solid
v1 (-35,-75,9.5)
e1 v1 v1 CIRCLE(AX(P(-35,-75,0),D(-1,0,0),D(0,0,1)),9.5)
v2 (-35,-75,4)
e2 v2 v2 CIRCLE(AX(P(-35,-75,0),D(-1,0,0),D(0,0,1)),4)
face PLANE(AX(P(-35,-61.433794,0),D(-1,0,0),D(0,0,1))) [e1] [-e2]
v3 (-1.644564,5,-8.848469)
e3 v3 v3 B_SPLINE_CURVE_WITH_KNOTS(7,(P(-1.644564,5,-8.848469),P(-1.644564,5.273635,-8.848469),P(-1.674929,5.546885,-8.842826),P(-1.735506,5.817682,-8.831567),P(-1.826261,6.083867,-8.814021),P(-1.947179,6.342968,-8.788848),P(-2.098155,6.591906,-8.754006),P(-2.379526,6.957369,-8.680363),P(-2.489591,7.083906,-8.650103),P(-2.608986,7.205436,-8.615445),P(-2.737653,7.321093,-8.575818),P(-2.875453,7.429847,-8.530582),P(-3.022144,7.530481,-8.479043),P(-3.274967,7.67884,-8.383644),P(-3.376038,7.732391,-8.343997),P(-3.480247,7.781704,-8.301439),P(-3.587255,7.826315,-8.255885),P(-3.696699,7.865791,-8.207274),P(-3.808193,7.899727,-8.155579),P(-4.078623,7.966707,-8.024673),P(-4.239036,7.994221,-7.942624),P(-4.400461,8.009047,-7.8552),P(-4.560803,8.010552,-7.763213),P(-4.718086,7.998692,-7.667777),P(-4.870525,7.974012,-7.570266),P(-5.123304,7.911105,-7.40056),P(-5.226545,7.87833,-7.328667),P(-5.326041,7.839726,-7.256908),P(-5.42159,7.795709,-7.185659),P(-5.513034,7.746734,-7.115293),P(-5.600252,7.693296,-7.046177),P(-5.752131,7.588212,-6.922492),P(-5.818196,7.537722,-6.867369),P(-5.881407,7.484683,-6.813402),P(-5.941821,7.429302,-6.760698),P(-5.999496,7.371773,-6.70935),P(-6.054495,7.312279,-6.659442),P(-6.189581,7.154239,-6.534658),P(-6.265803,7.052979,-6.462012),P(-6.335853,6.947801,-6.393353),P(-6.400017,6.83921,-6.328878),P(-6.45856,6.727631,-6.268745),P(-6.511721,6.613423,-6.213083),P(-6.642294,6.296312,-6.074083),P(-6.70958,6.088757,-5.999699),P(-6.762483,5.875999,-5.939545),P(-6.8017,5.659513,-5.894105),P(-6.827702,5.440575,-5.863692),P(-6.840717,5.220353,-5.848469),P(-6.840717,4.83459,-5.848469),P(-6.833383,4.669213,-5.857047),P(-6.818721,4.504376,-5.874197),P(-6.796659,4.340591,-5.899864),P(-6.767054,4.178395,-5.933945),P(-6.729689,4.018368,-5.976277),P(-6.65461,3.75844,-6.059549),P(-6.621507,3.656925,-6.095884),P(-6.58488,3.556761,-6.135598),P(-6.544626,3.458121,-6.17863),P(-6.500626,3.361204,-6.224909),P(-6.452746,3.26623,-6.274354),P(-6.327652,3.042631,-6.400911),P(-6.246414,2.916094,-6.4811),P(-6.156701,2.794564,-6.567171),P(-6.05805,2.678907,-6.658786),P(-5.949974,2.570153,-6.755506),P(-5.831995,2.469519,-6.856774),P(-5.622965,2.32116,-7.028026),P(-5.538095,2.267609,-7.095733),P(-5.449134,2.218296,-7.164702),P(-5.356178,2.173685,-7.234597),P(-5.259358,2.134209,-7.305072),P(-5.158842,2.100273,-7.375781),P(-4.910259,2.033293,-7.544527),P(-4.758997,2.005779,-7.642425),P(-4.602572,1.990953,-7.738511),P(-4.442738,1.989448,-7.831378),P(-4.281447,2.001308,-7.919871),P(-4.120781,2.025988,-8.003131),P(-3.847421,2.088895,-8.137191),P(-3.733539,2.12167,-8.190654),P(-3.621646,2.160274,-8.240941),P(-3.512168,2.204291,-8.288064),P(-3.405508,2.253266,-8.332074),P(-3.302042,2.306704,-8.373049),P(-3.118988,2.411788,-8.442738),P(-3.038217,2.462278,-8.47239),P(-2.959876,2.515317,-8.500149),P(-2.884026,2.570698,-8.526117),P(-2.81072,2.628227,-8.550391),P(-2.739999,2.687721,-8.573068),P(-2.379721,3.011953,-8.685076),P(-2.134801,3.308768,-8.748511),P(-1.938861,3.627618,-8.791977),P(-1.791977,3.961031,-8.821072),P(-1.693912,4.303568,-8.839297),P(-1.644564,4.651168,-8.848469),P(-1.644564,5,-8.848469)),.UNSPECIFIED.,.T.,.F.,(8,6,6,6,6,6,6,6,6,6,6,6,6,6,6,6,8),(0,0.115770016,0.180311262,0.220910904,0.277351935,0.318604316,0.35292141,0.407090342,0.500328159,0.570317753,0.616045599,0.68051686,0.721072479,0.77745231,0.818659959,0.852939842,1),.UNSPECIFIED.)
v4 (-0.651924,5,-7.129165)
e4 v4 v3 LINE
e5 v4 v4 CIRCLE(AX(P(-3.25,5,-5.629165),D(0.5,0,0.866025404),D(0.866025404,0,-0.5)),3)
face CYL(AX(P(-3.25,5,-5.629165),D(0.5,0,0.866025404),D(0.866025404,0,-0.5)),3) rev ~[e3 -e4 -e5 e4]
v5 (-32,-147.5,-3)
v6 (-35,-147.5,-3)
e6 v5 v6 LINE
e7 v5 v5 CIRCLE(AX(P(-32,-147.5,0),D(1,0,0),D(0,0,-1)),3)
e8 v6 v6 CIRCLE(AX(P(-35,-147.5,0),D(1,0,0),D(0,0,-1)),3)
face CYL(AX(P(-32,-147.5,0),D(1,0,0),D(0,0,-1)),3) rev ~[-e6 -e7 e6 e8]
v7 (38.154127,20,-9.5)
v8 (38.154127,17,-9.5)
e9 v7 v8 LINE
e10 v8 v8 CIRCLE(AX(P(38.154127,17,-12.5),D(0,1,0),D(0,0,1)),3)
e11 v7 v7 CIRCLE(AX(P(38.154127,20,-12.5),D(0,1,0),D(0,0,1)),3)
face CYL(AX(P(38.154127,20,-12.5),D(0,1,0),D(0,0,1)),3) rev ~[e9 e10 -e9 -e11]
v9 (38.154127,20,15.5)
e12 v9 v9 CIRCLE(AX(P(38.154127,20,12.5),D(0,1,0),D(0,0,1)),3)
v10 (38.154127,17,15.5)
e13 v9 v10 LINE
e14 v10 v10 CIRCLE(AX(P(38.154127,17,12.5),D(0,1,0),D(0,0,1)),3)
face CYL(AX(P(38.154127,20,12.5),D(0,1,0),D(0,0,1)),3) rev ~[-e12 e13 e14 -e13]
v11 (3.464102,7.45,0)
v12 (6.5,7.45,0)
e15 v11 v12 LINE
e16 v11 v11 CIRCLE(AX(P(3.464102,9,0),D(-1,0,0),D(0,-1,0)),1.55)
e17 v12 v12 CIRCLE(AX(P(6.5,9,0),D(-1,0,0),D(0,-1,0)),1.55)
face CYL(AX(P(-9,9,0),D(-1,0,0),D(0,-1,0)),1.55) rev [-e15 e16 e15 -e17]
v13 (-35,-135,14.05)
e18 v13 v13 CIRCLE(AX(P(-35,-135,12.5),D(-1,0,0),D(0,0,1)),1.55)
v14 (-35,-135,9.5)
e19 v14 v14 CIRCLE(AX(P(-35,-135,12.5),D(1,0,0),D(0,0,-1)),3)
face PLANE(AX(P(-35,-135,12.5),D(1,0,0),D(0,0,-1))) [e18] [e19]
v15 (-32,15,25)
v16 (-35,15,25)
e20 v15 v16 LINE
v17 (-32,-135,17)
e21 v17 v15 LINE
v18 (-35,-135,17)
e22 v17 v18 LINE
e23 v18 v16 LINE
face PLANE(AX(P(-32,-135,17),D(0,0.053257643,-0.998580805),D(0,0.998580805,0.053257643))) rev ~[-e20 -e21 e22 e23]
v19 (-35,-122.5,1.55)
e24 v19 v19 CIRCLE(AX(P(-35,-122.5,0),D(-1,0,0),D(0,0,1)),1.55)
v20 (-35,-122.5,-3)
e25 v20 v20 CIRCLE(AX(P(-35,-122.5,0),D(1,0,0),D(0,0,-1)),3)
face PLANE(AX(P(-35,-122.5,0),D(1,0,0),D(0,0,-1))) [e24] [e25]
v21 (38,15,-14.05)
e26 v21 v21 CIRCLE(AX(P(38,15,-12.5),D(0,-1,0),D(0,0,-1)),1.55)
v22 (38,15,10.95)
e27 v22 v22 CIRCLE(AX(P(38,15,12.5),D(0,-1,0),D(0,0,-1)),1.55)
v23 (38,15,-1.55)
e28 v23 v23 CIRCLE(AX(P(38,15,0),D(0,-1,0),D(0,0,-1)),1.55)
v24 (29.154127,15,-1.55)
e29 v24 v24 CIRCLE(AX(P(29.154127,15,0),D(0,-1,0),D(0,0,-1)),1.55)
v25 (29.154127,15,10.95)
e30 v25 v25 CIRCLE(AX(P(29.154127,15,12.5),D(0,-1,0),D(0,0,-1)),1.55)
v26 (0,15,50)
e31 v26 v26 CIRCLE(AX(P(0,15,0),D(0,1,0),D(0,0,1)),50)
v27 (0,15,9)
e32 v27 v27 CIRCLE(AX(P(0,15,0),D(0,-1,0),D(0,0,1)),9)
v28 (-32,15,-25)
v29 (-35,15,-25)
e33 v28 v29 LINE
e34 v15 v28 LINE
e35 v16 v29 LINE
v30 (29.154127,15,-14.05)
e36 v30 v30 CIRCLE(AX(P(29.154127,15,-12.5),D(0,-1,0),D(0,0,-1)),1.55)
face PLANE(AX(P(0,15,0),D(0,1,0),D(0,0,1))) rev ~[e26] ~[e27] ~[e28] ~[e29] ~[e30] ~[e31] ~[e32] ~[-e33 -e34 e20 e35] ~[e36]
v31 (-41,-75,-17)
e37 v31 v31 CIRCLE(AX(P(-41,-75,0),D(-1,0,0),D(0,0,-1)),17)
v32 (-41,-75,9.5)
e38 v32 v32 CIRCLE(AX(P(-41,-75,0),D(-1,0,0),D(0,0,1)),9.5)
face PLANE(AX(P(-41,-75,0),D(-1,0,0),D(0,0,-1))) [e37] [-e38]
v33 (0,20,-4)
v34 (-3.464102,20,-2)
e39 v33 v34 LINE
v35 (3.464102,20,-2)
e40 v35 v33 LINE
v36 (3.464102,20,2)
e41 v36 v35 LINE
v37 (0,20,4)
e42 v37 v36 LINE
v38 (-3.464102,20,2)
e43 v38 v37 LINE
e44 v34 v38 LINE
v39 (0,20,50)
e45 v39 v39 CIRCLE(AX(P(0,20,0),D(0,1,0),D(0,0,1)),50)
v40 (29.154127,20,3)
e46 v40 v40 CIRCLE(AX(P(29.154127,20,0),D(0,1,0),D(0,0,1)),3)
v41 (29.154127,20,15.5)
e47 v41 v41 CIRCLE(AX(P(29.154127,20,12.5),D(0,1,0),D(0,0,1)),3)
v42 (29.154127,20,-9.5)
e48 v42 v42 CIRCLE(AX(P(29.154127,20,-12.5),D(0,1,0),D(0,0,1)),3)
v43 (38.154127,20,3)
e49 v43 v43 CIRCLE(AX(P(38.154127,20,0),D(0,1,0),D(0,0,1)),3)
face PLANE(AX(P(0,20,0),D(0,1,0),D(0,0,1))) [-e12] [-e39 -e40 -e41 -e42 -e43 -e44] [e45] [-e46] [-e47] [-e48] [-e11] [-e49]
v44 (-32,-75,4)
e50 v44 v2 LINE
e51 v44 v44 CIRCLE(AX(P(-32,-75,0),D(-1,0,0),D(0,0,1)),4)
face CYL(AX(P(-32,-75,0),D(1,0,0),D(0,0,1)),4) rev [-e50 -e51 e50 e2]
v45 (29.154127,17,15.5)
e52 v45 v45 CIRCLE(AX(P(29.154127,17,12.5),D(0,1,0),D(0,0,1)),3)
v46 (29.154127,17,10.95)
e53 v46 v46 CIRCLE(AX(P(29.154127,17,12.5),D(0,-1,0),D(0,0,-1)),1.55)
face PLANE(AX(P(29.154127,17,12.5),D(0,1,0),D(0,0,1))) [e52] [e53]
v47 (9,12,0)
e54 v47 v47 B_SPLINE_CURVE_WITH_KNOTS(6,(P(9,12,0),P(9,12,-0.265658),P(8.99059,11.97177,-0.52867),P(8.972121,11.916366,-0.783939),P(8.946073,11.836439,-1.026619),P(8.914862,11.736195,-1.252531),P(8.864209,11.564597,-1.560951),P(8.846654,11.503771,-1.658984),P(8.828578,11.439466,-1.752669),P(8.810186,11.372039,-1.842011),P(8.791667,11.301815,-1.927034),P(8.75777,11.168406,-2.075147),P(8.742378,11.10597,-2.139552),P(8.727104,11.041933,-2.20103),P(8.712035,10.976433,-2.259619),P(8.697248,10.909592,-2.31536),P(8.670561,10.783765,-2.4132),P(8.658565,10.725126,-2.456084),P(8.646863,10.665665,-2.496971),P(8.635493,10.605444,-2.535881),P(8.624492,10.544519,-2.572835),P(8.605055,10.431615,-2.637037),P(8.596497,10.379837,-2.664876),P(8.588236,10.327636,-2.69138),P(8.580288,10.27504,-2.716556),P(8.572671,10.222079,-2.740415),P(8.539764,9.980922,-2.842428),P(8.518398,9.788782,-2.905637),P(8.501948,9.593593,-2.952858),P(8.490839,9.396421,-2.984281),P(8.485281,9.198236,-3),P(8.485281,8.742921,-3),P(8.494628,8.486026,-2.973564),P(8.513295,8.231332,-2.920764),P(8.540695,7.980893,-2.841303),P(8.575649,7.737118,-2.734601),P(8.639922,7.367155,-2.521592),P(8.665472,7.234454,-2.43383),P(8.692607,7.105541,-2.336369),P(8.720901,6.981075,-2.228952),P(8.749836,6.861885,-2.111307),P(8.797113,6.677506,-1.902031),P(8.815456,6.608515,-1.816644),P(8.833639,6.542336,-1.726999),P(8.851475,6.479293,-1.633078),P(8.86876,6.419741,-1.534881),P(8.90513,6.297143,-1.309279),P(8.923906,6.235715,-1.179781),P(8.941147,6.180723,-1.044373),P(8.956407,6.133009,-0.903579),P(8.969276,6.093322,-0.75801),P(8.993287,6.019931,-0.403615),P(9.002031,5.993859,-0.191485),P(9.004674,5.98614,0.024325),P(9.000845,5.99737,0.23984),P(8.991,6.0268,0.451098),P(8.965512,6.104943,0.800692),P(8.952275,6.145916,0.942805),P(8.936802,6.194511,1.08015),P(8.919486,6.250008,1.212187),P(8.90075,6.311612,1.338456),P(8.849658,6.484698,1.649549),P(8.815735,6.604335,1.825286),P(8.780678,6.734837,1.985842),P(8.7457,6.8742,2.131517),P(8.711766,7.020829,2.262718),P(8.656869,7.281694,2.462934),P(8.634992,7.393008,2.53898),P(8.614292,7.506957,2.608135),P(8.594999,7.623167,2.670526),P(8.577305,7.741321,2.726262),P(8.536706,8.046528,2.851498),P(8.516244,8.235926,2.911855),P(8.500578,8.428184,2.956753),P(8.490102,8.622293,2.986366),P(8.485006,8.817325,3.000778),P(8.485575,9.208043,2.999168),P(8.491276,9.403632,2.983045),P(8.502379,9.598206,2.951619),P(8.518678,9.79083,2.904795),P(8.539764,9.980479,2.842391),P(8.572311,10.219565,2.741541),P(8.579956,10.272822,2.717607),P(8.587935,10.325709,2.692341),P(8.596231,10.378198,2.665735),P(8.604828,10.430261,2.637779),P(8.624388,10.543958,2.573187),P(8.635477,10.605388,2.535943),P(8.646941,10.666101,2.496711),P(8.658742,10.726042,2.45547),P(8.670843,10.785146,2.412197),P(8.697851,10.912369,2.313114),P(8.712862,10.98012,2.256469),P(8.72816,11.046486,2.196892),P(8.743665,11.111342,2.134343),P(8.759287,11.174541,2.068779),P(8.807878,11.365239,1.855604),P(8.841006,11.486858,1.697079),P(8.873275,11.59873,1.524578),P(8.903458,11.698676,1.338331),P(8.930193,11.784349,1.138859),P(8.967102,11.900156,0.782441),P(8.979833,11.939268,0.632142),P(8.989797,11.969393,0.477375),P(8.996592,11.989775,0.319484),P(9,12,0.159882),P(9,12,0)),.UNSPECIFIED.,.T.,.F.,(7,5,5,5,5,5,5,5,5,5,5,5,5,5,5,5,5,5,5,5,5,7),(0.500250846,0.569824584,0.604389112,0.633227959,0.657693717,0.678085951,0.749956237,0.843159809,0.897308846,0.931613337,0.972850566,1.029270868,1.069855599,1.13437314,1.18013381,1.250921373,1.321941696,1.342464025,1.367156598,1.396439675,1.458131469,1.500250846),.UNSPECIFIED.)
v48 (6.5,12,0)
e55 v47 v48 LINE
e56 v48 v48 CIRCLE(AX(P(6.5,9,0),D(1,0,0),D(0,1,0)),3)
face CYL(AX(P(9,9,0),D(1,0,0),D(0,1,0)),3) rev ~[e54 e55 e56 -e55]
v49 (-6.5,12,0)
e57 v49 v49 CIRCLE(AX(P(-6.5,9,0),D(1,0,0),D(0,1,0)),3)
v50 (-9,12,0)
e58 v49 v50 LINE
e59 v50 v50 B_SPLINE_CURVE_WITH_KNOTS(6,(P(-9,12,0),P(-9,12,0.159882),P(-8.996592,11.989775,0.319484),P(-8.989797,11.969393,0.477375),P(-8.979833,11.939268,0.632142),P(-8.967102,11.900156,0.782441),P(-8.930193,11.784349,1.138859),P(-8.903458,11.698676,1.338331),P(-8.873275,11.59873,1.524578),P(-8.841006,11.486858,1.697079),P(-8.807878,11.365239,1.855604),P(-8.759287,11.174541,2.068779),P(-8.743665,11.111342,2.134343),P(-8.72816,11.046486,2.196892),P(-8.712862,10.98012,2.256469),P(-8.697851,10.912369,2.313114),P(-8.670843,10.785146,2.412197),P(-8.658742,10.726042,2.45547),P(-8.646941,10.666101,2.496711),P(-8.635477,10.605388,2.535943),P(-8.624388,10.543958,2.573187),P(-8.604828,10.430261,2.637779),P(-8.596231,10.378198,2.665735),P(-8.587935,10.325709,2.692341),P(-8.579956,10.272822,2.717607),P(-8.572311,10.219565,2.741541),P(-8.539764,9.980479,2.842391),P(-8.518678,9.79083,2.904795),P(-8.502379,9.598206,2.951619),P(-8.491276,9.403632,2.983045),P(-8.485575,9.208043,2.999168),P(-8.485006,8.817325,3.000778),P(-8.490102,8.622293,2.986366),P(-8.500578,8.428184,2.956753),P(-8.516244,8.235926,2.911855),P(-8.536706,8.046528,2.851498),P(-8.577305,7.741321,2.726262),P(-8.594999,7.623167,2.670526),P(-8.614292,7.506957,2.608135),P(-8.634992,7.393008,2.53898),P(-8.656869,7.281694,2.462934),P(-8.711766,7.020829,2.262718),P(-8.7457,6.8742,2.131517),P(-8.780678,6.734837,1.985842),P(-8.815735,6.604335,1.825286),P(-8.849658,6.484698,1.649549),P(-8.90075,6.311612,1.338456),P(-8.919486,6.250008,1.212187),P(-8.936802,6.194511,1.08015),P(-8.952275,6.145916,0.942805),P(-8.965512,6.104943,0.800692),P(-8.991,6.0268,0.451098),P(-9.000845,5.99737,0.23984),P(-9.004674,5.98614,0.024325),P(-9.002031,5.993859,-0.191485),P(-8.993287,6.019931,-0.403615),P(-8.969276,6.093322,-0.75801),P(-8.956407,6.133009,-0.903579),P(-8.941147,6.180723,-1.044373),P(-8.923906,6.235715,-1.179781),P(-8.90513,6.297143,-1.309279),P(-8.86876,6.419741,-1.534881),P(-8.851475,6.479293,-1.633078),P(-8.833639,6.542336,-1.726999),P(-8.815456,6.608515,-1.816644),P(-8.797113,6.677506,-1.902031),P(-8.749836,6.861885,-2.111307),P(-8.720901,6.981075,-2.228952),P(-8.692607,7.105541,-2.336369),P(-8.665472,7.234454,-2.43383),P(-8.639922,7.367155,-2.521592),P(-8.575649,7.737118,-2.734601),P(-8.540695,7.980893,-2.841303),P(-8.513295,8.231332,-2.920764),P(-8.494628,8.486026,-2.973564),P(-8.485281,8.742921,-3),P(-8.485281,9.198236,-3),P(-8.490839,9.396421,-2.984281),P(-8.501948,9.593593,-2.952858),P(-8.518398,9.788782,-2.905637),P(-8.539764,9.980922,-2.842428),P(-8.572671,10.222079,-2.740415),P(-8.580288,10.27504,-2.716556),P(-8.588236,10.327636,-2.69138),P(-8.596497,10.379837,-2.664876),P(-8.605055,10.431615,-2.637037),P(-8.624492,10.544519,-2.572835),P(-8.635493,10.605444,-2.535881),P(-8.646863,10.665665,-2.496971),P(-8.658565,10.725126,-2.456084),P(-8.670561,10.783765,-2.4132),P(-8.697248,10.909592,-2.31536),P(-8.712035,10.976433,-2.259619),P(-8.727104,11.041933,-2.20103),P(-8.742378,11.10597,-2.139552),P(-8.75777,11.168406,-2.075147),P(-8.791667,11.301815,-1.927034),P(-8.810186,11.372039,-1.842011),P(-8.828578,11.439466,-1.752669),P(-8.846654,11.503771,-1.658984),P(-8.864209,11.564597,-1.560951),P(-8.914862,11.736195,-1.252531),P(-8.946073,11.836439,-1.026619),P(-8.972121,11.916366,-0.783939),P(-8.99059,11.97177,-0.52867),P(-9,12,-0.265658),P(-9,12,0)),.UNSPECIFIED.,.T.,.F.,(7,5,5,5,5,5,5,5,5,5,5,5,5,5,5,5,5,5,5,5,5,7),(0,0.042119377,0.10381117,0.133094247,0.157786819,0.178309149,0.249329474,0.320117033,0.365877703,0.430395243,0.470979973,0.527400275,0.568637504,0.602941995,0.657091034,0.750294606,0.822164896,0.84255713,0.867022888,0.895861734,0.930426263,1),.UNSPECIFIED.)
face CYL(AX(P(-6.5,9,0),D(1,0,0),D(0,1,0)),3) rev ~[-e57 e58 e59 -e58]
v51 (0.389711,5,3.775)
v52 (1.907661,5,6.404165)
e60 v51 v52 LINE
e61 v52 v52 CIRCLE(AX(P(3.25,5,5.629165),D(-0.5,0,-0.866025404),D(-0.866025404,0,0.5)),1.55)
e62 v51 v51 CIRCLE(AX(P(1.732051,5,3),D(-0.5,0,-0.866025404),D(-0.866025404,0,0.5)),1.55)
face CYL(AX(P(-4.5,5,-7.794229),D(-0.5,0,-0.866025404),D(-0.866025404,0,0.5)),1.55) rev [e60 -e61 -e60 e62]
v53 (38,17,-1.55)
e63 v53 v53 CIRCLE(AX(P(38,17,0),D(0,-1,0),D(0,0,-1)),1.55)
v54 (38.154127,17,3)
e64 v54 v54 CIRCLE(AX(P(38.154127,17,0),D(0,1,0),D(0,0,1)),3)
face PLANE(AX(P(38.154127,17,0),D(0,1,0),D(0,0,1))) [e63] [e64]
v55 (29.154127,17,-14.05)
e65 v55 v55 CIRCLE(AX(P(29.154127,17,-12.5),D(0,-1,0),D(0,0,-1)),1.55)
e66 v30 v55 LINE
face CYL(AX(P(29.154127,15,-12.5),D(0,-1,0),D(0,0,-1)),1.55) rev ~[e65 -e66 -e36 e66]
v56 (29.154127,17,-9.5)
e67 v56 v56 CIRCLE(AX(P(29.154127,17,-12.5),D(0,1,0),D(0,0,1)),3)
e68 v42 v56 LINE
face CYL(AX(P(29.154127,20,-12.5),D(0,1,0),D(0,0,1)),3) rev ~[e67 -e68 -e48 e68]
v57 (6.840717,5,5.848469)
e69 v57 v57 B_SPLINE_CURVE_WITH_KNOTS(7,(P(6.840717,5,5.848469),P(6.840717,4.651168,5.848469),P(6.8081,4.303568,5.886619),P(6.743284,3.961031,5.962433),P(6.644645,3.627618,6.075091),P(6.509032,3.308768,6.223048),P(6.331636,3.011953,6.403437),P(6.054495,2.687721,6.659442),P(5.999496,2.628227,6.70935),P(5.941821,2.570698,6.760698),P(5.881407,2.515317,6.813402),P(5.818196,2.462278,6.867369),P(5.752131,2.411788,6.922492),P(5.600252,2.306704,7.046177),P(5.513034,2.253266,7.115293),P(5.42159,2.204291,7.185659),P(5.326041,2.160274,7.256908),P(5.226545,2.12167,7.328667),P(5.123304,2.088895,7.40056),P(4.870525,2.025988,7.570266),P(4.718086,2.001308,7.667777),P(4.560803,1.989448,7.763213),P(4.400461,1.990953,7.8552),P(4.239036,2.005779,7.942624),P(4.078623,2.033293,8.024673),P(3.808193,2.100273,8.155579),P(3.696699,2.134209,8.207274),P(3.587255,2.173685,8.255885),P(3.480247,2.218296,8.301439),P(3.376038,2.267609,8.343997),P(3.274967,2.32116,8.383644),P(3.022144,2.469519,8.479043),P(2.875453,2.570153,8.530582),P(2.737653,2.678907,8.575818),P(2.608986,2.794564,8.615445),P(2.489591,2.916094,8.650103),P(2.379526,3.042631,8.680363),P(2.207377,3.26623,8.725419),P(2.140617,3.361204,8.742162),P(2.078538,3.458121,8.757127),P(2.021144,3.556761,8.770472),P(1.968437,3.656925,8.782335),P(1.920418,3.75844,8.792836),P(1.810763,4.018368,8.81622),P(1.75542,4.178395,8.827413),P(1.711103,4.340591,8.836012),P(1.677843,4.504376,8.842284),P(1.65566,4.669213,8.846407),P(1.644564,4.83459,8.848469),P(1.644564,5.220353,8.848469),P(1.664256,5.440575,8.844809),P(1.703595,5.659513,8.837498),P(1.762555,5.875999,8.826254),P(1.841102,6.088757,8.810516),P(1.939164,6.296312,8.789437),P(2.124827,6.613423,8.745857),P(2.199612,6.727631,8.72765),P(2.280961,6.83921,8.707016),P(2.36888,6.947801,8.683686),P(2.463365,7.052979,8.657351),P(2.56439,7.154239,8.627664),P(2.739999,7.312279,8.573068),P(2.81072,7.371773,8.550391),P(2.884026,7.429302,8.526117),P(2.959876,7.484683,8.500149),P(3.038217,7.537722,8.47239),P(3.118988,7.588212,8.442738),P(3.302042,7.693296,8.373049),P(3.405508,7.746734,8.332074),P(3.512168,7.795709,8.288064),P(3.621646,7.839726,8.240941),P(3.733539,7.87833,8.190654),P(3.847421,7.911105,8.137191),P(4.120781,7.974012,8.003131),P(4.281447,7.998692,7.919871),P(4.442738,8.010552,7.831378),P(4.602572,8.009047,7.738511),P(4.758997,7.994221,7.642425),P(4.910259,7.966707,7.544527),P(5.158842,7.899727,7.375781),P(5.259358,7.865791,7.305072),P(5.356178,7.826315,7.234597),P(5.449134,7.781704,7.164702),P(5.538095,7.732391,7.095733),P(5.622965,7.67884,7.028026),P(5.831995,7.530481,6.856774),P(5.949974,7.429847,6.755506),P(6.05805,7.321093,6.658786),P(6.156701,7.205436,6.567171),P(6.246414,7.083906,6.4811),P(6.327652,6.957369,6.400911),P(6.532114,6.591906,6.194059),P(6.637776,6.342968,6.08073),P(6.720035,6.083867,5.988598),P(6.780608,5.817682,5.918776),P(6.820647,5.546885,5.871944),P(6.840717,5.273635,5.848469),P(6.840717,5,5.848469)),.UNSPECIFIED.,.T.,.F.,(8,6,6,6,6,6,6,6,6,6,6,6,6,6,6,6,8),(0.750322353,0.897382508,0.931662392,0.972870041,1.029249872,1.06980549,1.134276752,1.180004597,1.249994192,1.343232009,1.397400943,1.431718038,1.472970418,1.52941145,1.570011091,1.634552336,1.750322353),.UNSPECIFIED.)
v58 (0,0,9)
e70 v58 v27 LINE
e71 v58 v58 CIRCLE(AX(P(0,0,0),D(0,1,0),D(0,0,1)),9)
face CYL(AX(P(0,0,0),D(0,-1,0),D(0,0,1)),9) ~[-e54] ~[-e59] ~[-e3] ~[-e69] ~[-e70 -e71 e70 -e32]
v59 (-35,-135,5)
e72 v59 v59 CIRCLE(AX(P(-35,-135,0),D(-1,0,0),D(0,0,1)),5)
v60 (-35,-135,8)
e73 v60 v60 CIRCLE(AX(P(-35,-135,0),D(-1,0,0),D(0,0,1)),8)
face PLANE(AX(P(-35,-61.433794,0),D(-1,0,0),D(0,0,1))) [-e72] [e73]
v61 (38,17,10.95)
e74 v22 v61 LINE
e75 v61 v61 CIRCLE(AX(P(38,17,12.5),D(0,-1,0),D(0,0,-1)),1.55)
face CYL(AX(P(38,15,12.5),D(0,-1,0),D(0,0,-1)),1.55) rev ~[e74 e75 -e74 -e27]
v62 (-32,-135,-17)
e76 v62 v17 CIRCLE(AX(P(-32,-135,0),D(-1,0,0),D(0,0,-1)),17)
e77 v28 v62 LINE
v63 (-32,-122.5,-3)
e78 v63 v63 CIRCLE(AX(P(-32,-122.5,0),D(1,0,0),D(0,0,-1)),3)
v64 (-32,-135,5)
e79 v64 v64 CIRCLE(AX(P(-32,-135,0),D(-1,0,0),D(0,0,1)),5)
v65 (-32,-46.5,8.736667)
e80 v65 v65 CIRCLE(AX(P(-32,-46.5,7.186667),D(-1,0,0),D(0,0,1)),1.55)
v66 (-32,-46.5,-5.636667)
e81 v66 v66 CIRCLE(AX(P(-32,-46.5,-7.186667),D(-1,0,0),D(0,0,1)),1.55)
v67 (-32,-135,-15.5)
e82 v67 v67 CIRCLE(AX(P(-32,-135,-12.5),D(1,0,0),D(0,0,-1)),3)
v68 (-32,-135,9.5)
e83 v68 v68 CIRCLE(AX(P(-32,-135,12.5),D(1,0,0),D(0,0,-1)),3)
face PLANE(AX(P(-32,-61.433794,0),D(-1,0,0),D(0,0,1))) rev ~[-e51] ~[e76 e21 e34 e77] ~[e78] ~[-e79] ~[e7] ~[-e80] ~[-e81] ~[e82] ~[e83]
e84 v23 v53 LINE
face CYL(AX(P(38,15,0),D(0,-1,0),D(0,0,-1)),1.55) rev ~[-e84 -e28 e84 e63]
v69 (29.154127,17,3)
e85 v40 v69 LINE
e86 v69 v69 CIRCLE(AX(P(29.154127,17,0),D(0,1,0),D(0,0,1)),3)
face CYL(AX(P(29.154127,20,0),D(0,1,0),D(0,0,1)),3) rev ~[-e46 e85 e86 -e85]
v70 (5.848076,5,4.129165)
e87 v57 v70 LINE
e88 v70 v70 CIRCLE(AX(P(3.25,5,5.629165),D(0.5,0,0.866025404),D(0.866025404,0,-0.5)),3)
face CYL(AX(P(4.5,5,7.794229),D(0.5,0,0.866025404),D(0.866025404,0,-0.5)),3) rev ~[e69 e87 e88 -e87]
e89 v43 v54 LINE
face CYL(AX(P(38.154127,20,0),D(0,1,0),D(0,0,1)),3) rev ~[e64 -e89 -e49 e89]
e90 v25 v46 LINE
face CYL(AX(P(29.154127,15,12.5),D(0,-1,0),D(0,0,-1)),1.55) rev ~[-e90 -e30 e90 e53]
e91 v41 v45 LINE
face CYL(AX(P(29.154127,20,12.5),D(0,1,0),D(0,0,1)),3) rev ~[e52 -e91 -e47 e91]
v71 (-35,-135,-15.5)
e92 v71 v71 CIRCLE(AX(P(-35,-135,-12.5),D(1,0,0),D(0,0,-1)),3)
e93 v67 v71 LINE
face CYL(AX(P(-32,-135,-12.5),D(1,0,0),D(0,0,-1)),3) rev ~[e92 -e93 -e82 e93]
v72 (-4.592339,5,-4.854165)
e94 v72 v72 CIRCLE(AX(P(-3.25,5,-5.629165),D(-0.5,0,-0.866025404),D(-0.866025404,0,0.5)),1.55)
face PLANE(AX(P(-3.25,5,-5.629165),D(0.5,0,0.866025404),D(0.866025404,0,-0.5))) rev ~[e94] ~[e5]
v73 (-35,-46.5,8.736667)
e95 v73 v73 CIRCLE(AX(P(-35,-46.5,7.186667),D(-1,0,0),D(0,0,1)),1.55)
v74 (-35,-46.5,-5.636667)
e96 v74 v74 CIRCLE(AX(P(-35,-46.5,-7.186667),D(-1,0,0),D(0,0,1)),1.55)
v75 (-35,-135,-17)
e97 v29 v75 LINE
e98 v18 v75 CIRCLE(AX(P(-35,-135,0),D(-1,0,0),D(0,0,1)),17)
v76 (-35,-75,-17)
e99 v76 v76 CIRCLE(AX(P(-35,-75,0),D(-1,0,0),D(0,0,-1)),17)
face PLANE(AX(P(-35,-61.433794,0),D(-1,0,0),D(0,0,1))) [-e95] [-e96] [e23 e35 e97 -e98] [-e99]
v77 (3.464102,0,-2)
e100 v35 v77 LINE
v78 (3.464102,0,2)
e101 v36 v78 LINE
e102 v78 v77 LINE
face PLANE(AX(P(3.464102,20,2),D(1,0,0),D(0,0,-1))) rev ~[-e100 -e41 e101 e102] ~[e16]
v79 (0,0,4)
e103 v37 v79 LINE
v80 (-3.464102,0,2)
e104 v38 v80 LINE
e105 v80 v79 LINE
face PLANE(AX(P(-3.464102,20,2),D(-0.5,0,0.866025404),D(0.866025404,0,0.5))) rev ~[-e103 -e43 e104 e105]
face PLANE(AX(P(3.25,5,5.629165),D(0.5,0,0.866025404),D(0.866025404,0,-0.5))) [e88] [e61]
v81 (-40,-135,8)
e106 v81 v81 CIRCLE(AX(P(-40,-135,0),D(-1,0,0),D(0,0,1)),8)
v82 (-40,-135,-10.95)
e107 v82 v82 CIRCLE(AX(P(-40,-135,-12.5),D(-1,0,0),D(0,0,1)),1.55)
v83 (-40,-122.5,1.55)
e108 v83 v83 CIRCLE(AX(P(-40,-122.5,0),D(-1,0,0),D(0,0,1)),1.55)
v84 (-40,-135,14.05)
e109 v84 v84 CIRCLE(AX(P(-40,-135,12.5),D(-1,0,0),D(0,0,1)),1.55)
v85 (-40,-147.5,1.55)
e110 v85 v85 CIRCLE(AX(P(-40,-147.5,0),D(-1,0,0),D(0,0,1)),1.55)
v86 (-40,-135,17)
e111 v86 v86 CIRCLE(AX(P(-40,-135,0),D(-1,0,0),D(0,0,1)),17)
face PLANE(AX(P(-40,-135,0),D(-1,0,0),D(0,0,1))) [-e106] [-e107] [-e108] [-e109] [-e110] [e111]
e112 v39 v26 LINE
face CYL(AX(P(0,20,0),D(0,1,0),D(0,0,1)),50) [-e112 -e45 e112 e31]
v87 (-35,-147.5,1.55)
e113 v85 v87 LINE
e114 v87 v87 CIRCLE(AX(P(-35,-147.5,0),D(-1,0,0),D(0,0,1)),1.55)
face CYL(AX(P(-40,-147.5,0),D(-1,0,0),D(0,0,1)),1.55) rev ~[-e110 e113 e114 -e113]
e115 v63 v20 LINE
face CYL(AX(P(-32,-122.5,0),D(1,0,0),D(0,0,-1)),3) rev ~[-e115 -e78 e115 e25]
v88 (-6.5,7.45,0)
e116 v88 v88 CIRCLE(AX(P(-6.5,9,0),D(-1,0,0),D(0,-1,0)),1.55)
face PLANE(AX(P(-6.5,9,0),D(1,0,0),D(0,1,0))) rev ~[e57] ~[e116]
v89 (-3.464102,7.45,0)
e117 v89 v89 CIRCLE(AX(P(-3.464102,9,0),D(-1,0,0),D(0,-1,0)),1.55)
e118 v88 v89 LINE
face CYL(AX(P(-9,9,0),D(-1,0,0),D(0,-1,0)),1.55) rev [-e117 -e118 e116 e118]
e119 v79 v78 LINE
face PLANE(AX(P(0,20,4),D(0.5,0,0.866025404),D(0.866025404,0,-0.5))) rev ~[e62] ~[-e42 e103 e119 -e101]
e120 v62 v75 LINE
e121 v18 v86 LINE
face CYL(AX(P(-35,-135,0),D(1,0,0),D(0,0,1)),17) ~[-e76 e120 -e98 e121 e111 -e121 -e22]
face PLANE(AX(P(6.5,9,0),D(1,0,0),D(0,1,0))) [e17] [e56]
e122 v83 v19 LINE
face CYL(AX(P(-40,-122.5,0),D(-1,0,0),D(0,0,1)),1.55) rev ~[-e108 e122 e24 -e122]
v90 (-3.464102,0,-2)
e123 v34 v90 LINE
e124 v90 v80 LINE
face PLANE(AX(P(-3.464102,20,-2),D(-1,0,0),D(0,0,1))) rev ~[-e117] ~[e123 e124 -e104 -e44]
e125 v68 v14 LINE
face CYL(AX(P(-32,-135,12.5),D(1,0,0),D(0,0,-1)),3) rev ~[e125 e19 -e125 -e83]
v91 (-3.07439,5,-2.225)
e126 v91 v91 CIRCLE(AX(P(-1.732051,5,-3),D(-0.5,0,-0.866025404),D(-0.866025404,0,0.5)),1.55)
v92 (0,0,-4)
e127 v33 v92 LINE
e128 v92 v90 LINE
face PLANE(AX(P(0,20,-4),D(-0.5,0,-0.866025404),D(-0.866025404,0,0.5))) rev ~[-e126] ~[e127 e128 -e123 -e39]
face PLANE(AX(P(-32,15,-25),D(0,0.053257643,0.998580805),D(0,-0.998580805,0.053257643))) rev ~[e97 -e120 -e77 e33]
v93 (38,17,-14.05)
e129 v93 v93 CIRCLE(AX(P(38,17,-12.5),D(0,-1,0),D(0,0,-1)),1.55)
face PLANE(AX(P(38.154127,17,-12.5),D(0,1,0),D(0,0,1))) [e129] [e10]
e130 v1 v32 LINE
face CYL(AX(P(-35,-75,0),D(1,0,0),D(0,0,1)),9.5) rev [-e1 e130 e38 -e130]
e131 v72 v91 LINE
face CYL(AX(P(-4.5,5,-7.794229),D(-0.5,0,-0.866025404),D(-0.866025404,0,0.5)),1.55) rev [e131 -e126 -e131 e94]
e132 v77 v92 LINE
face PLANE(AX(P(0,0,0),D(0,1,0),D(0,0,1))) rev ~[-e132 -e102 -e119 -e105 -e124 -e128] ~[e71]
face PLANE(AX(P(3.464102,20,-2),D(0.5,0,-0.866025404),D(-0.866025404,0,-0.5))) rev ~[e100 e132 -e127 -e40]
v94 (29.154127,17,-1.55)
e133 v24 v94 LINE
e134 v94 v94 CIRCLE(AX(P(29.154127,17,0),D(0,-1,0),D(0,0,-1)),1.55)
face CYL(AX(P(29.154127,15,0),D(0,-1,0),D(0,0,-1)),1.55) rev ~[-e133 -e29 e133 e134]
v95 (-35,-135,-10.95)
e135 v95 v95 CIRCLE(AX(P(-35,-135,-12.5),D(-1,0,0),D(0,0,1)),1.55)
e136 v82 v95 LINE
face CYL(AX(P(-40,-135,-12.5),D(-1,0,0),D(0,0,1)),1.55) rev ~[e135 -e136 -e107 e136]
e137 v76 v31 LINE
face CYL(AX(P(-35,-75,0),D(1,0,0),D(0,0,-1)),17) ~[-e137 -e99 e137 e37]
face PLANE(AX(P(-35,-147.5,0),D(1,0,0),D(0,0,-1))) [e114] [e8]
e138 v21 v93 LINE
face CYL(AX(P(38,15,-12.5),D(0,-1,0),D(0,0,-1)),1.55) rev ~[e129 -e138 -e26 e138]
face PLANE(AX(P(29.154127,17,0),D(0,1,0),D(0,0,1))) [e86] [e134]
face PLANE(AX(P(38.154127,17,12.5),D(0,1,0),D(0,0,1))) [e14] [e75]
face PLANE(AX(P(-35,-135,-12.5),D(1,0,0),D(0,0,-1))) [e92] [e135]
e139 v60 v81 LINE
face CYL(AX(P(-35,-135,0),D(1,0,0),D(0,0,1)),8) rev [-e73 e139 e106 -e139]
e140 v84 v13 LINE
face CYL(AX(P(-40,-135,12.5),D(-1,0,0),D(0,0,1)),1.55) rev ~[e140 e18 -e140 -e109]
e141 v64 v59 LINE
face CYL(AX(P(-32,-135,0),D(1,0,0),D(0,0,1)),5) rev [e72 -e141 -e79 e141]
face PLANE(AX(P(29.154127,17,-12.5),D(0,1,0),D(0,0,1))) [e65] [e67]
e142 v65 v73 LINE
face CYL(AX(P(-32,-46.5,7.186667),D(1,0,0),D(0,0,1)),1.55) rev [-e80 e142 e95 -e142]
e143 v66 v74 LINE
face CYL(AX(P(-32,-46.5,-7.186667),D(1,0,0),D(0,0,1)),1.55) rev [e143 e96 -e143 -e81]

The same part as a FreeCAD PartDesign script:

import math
import FreeCAD as App
import Part
import Sketcher

V = App.Vector
Q = App.Units.Quantity

doc = App.newDocument("Part")
params = doc.addObject("Spreadsheet::Sheet", "Params")
for row, (alias, value) in enumerate([
    ("sketch1_diameter", "18 mm"),
    ("pad1_length", "20 mm"),
    ("sketch2_height", "4 mm"),
    ("sketch2_length", "4 mm"),
    ("pocket1_length", "20 mm"),
    ("sketch3_diameter", "100 mm"),
    ("sketch3_diameter2", "9 mm"),
    ("pad2_length", "5 mm"),
    ("sketch4_diameter", "3.1 mm"),
    ("sketch5_diameter", "3.1 mm"),
    ("sketch6_diameter", "10 mm"),
    ("sketch6_diameter2", "8 mm"),
    ("sketch6_radius", "17 mm"),
    ("sketch6_diameter3", "3.1 mm"),
    ("sketch6_height", "50 mm"),
    ("pad3_length", "3 mm"),
    ("sketch7_diameter", "34 mm"),
    ("sketch7_diameter2", "16 mm"),
    ("pad4_length", "5 mm"),
    ("sketch8_diameter", "3.1 mm"),
    ("pocket4_length", "8 mm"),
    ("sketch9_diameter", "6 mm"),
    ("pocket5_length", "3 mm"),
    ("sketch10_diameter", "3.1 mm"),
    ("pocket6_length", "5 mm"),
    ("sketch11_diameter", "6 mm"),
    ("pocket7_length", "3 mm"),
    ("sketch12_diameter", "34 mm"),
    ("sketch12_diameter2", "19 mm"),
    ("pad5_length", "6 mm"),
    ("sketch13_diameter", "6 mm"),
    ("pocket8_length", "2.5 mm"),
    ("sketch14_diameter", "6 mm"),
    ("pocket9_length", "2.5 mm"),
    ("sketch15_diameter", "6 mm"),
    ("pocket10_length", "2.5 mm"),
    ("sketch16_diameter", "6 mm"),
    ("pocket11_length", "2.5 mm"),
], start=1):
    params.set(f"A{row}", alias)
    params.set(f"B{row}", "=" + value)
    params.setAlias(f"B{row}", alias)

body = doc.addObject("PartDesign::Body", "Body")

sketch1 = doc.addObject("Sketcher::SketchObject", "Sketch")
body.addObject(sketch1)
sketch1.AttachmentSupport = (doc.XZ_Plane, [""])
sketch1.MapMode = "FlatFace"
sketch1.addGeometry(Part.Circle(V(0, 0, 0), V(0, 0, 1), 9), False)
sketch1.addConstraint([
    Sketcher.Constraint("Coincident", 0, 3, -1, 1),
    Sketcher.Constraint("Diameter", 0, 18.0),
])
sketch1.setExpression("Constraints[1]", "Params.sketch1_diameter")
pad1 = doc.addObject("PartDesign::Pad", "Pad")
body.addObject(pad1)
pad1.Profile = sketch1
pad1.setExpression("Length", "Params.pad1_length")
pad1.Reversed = True

sketch2 = doc.addObject("Sketcher::SketchObject", "Sketch001")
body.addObject(sketch2)
sketch2.AttachmentSupport = (doc.XZ_Plane, [""])
sketch2.MapMode = "FlatFace"
sketch2.AttachmentOffset = App.Placement(V(0, 0, -20), App.Rotation())
sketch2.addGeometry([
    Part.LineSegment(V(0, -4, 0), V(-3.5, -2, 0)),
    Part.LineSegment(V(-3.5, -2, 0), V(-3.5, 2, 0)),
    Part.LineSegment(V(-3.5, 2, 0), V(0, 4, 0)),
    Part.LineSegment(V(0, 4, 0), V(3.5, 2, 0)),
    Part.LineSegment(V(3.5, 2, 0), V(3.5, -2, 0)),
    Part.LineSegment(V(3.5, -2, 0), V(0, -4, 0)),
], False)
sketch2.addConstraint([
    Sketcher.Constraint("Coincident", 0, 2, 1, 1),
    Sketcher.Constraint("Coincident", 1, 2, 2, 1),
    Sketcher.Constraint("Coincident", 2, 2, 3, 1),
    Sketcher.Constraint("Coincident", 3, 2, 4, 1),
    Sketcher.Constraint("Coincident", 4, 2, 5, 1),
    Sketcher.Constraint("Coincident", 5, 2, 0, 1),
    Sketcher.Constraint("Vertical", 1),
    Sketcher.Constraint("Vertical", 4),
    Sketcher.Constraint("Symmetric", 0, 2, 3, 2, -1, 1),
    Sketcher.Constraint("Symmetric", 2, 2, 5, 2, -1, 1),
    Sketcher.Constraint("PointOnObject", 2, 2, -2),
    Sketcher.Constraint("Parallel", 2, 5),
    Sketcher.Constraint("Horizontal", 1, 2, 3, 2),
    Sketcher.Constraint("DistanceY", 1, 1, 1, 2, 4.0),
    Sketcher.Constraint("Angle", 0, Q("150 deg")),
    Sketcher.Constraint("Distance", 0, 4.0),
])
sketch2.setExpression("Constraints[13]", "Params.sketch2_height")
sketch2.setExpression("Constraints[15]", "Params.sketch2_length")
pocket1 = doc.addObject("PartDesign::Pocket", "Pocket")
body.addObject(pocket1)
pocket1.Profile = sketch2
pocket1.setExpression("Length", "Params.pocket1_length")
pocket1.Reversed = True

sketch3 = doc.addObject("Sketcher::SketchObject", "Sketch002")
body.addObject(sketch3)
sketch3.AttachmentSupport = (doc.XZ_Plane, [""])
sketch3.MapMode = "FlatFace"
sketch3.AttachmentOffset = App.Placement(V(0, 0, -20), App.Rotation())
sketch3.addGeometry([
    Part.Circle(V(0, 0, 0), V(0, 0, 1), 50),
    Part.Circle(V(0, 0, 0), V(0, 0, 1), 4.5),
], False)
sketch3.addConstraint([
    Sketcher.Constraint("Coincident", 0, 3, -1, 1),
    Sketcher.Constraint("Coincident", 1, 3, -1, 1),
    Sketcher.Constraint("Diameter", 0, 100.0),
    Sketcher.Constraint("Diameter", 1, 9.0),
])
sketch3.setExpression("Constraints[2]", "Params.sketch3_diameter")
sketch3.setExpression("Constraints[3]", "Params.sketch3_diameter2")
pad2 = doc.addObject("PartDesign::Pad", "Pad001")
body.addObject(pad2)
pad2.Profile = sketch3
pad2.setExpression("Length", "Params.pad2_length")

sketch4 = doc.addObject("Sketcher::SketchObject", "Sketch003")
body.addObject(sketch4)
sketch4.Placement = App.Placement(V(0, 0, 0), App.Rotation(V(0.866025404, 0, -0.5), V(0, 1, 0), V(0.5, 0, 0.866025404), "ZXY"))
sketch4.addGeometry(Part.Circle(V(0, 5, 0), V(0, 0, 1), 1.6), False)
sketch4.addConstraint([
    Sketcher.Constraint("PointOnObject", 0, 3, -2),
    Sketcher.Constraint("Diameter", 0, 3.1),
    Sketcher.Constraint("DistanceY", -1, 1, 0, 3, 5.0),
])
sketch4.setExpression("Constraints[1]", "Params.sketch4_diameter")
pocket2 = doc.addObject("PartDesign::Pocket", "Pocket001")
body.addObject(pocket2)
pocket2.Profile = sketch4
pocket2.Type = "ThroughAll"
pocket2.Midplane = True

sketch5 = doc.addObject("Sketcher::SketchObject", "Sketch004")
body.addObject(sketch5)
sketch5.AttachmentSupport = (doc.YZ_Plane, [""])
sketch5.MapMode = "FlatFace"
sketch5.addGeometry(Part.Circle(V(9, 0, 0), V(0, 0, 1), 1.6), False)
sketch5.addConstraint([
    Sketcher.Constraint("PointOnObject", 0, 3, -1),
    Sketcher.Constraint("Diameter", 0, 3.1),
    Sketcher.Constraint("DistanceX", -1, 1, 0, 3, 9.0),
])
sketch5.setExpression("Constraints[1]", "Params.sketch5_diameter")
pocket3 = doc.addObject("PartDesign::Pocket", "Pocket002")
body.addObject(pocket3)
pocket3.Profile = sketch5
pocket3.Type = "ThroughAll"
pocket3.Midplane = True

sketch6 = doc.addObject("Sketcher::SketchObject", "Sketch005")
body.addObject(sketch6)
sketch6.AttachmentSupport = (doc.YZ_Plane, [""])
sketch6.MapMode = "FlatFace"
sketch6.AttachmentOffset = App.Placement(V(0, 0, -32), App.Rotation())
sketch6.addGeometry([
    Part.LineSegment(V(15, 25, 0), V(15, -25, 0)),
    Part.LineSegment(V(15, -25, 0), V(-135, -17, 0)),
    Part.ArcOfCircle(Part.Circle(V(-135, 0, 0), V(0, 0, 1), 17), math.radians(90), math.radians(270)),
    Part.LineSegment(V(-135, 17, 0), V(15, 25, 0)),
    Part.Circle(V(-135, 0, 0), V(0, 0, 1), 5),
    Part.Circle(V(-46.5, -7.2, 0), V(0, 0, 1), 1.6),
    Part.Circle(V(-75, 0, 0), V(0, 0, 1), 4),
    Part.Circle(V(-46.5, 7.2, 0), V(0, 0, 1), 1.6),
], False)
sketch6.addConstraint([
    Sketcher.Constraint("Coincident", 0, 2, 1, 1),
    Sketcher.Constraint("Coincident", 1, 2, 2, 2),
    Sketcher.Constraint("Coincident", 2, 1, 3, 1),
    Sketcher.Constraint("Coincident", 3, 2, 0, 1),
    Sketcher.Constraint("Vertical", 0),
    Sketcher.Constraint("Coincident", 4, 3, 2, 3),
    Sketcher.Constraint("Equal", 5, 7),
    Sketcher.Constraint("Symmetric", 5, 3, 7, 3, -1),
    Sketcher.Constraint("Symmetric", 1, 2, 2, 1, -1),
    Sketcher.Constraint("PointOnObject", 6, 3, -1),
    Sketcher.Constraint("Vertical", 4, 3, 1, 2),
    Sketcher.Constraint("Equal", 1, 3),
    Sketcher.Constraint("Diameter", 4, 10.0),
    Sketcher.Constraint("Diameter", 6, 8.0),
    Sketcher.Constraint("Radius", 2, 17.0),
    Sketcher.Constraint("Diameter", 5, 3.1),
    Sketcher.Constraint("DistanceY", 0, 2, 0, 1, 50.0),
    Sketcher.Constraint("DistanceX", 2, 3, -1, 1, 135.0),
    Sketcher.Constraint("DistanceX", 6, 3, -1, 1, 75.0),
    Sketcher.Constraint("DistanceX", -1, 1, 0, 2, 15.0),
    Sketcher.Constraint("DistanceX", 5, 3, -1, 1, 46.5),
    Sketcher.Constraint("DistanceY", 5, 3, -1, 1, 7.186667),
])
sketch6.setExpression("Constraints[12]", "Params.sketch6_diameter")
sketch6.setExpression("Constraints[13]", "Params.sketch6_diameter2")
sketch6.setExpression("Constraints[14]", "Params.sketch6_radius")
sketch6.setExpression("Constraints[15]", "Params.sketch6_diameter3")
sketch6.setExpression("Constraints[16]", "Params.sketch6_height")
pad3 = doc.addObject("PartDesign::Pad", "Pad002")
body.addObject(pad3)
pad3.Profile = sketch6
pad3.setExpression("Length", "Params.pad3_length")
pad3.Reversed = True

sketch7 = doc.addObject("Sketcher::SketchObject", "Sketch006")
body.addObject(sketch7)
sketch7.AttachmentSupport = (doc.YZ_Plane, [""])
sketch7.MapMode = "FlatFace"
sketch7.AttachmentOffset = App.Placement(V(0, 0, -35), App.Rotation())
sketch7.addGeometry([
    Part.Circle(V(-135, 0, 0), V(0, 0, 1), 17),
    Part.Circle(V(-135, 0, 0), V(0, 0, 1), 8),
], False)
sketch7.addConstraint([
    Sketcher.Constraint("Coincident", 1, 3, 0, 3),
    Sketcher.Constraint("PointOnObject", 0, 3, -1),
    Sketcher.Constraint("Diameter", 0, 34.0),
    Sketcher.Constraint("Diameter", 1, 16.0),
    Sketcher.Constraint("DistanceX", 0, 3, -1, 1, 135.0),
])
sketch7.setExpression("Constraints[2]", "Params.sketch7_diameter")
sketch7.setExpression("Constraints[3]", "Params.sketch7_diameter2")
pad4 = doc.addObject("PartDesign::Pad", "Pad003")
body.addObject(pad4)
pad4.Profile = sketch7
pad4.setExpression("Length", "Params.pad4_length")
pad4.Reversed = True

sketch8 = doc.addObject("Sketcher::SketchObject", "Sketch007")
body.addObject(sketch8)
sketch8.AttachmentSupport = (doc.YZ_Plane, [""])
sketch8.MapMode = "FlatFace"
sketch8.AttachmentOffset = App.Placement(V(0, 0, -40), App.Rotation())
sketch8.addGeometry([
    Part.Circle(V(-135, -12.5, 0), V(0, 0, 1), 1.6),
    Part.Circle(V(-122.5, 0, 0), V(0, 0, 1), 1.6),
    Part.Circle(V(-135, 12.5, 0), V(0, 0, 1), 1.6),
    Part.Circle(V(-147.5, 0, 0), V(0, 0, 1), 1.6),
], False)
sketch8.addConstraint([
    Sketcher.Constraint("Equal", 0, 1),
    Sketcher.Constraint("Equal", 1, 2),
    Sketcher.Constraint("Equal", 2, 3),
    Sketcher.Constraint("Symmetric", 0, 3, 2, 3, -1),
    Sketcher.Constraint("PointOnObject", 1, 3, -1),
    Sketcher.Constraint("PointOnObject", 3, 3, -1),
    Sketcher.Constraint("Diameter", 0, 3.1),
    Sketcher.Constraint("DistanceX", 0, 3, -1, 1, 135.0),
    Sketcher.Constraint("DistanceY", 0, 3, 2, 3, 25.0),
    Sketcher.Constraint("DistanceX", 3, 3, 1, 3, 25.0),
    Sketcher.Constraint("DistanceX", 1, 3, -1, 1, 122.5),
])
sketch8.setExpression("Constraints[6]", "Params.sketch8_diameter")
pocket4 = doc.addObject("PartDesign::Pocket", "Pocket003")
body.addObject(pocket4)
pocket4.Profile = sketch8
pocket4.setExpression("Length", "Params.pocket4_length")
pocket4.Reversed = True

sketch9 = doc.addObject("Sketcher::SketchObject", "Sketch008")
body.addObject(sketch9)
sketch9.AttachmentSupport = (doc.YZ_Plane, [""])
sketch9.MapMode = "FlatFace"
sketch9.AttachmentOffset = App.Placement(V(0, 0, -32), App.Rotation())
sketch9.addGeometry([
    Part.Circle(V(-135, 12.5, 0), V(0, 0, 1), 3),
    Part.Circle(V(-122.5, 0, 0), V(0, 0, 1), 3),
    Part.Circle(V(-135, -12.5, 0), V(0, 0, 1), 3),
    Part.Circle(V(-147.5, 0, 0), V(0, 0, 1), 3),
], False)
sketch9.addConstraint([
    Sketcher.Constraint("Equal", 0, 1),
    Sketcher.Constraint("Equal", 1, 2),
    Sketcher.Constraint("Equal", 2, 3),
    Sketcher.Constraint("Symmetric", 0, 3, 2, 3, -1),
    Sketcher.Constraint("PointOnObject", 1, 3, -1),
    Sketcher.Constraint("PointOnObject", 3, 3, -1),
    Sketcher.Constraint("Diameter", 0, 6.0),
    Sketcher.Constraint("DistanceX", 0, 3, -1, 1, 135.0),
    Sketcher.Constraint("DistanceY", 2, 3, 0, 3, 25.0),
    Sketcher.Constraint("DistanceX", 3, 3, 1, 3, 25.0),
    Sketcher.Constraint("DistanceX", 1, 3, -1, 1, 122.5),
])
sketch9.setExpression("Constraints[6]", "Params.sketch9_diameter")
pocket5 = doc.addObject("PartDesign::Pocket", "Pocket004")
body.addObject(pocket5)
pocket5.Profile = sketch9
pocket5.setExpression("Length", "Params.pocket5_length")

sketch10 = doc.addObject("Sketcher::SketchObject", "Sketch009")
body.addObject(sketch10)
sketch10.AttachmentSupport = (doc.XZ_Plane, [""])
sketch10.MapMode = "FlatFace"
sketch10.AttachmentOffset = App.Placement(V(0, 0, -15), App.Rotation())
sketch10.addGeometry([
    Part.Circle(V(29.2, 12.5, 0), V(0, 0, 1), 1.6),
    Part.Circle(V(29.2, 0, 0), V(0, 0, 1), 1.6),
    Part.Circle(V(29.2, -12.5, 0), V(0, 0, 1), 1.6),
    Part.Circle(V(38, -12.5, 0), V(0, 0, 1), 1.6),
    Part.Circle(V(38, 0, 0), V(0, 0, 1), 1.6),
    Part.Circle(V(38, 12.5, 0), V(0, 0, 1), 1.6),
], False)
sketch10.addConstraint([
    Sketcher.Constraint("Equal", 0, 1),
    Sketcher.Constraint("Equal", 1, 2),
    Sketcher.Constraint("Equal", 2, 3),
    Sketcher.Constraint("Equal", 3, 4),
    Sketcher.Constraint("Equal", 4, 5),
    Sketcher.Constraint("Symmetric", 0, 3, 2, 3, -1),
    Sketcher.Constraint("Symmetric", 3, 3, 5, 3, -1),
    Sketcher.Constraint("PointOnObject", 1, 3, -1),
    Sketcher.Constraint("PointOnObject", 4, 3, -1),
    Sketcher.Constraint("Horizontal", 2, 3, 3, 3),
    Sketcher.Constraint("Vertical", 0, 3, 1, 3),
    Sketcher.Constraint("Vertical", 3, 3, 4, 3),
    Sketcher.Constraint("Diameter", 0, 3.1),
    Sketcher.Constraint("DistanceX", -1, 1, 3, 3, 38.0),
    Sketcher.Constraint("DistanceY", 2, 3, 0, 3, 25.0),
    Sketcher.Constraint("DistanceX", -1, 1, 0, 3, 29.154127),
])
sketch10.setExpression("Constraints[12]", "Params.sketch10_diameter")
pocket6 = doc.addObject("PartDesign::Pocket", "Pocket005")
body.addObject(pocket6)
pocket6.Profile = sketch10
pocket6.setExpression("Length", "Params.pocket6_length")

sketch11 = doc.addObject("Sketcher::SketchObject", "Sketch010")
body.addObject(sketch11)
sketch11.AttachmentSupport = (doc.XZ_Plane, [""])
sketch11.MapMode = "FlatFace"
sketch11.AttachmentOffset = App.Placement(V(0, 0, -20), App.Rotation())
sketch11.addGeometry([
    Part.Circle(V(29.2, -12.5, 0), V(0, 0, 1), 3),
    Part.Circle(V(38.2, -12.5, 0), V(0, 0, 1), 3),
    Part.Circle(V(38.2, 0, 0), V(0, 0, 1), 3),
    Part.Circle(V(38.2, 12.5, 0), V(0, 0, 1), 3),
    Part.Circle(V(29.2, 0, 0), V(0, 0, 1), 3),
    Part.Circle(V(29.2, 12.5, 0), V(0, 0, 1), 3),
], False)
sketch11.addConstraint([
    Sketcher.Constraint("Equal", 0, 1),
    Sketcher.Constraint("Equal", 1, 2),
    Sketcher.Constraint("Equal", 2, 3),
    Sketcher.Constraint("Equal", 3, 4),
    Sketcher.Constraint("Equal", 4, 5),
    Sketcher.Constraint("Symmetric", 1, 3, 3, 3, -1),
    Sketcher.Constraint("Symmetric", 0, 3, 5, 3, -1),
    Sketcher.Constraint("PointOnObject", 2, 3, -1),
    Sketcher.Constraint("PointOnObject", 4, 3, -1),
    Sketcher.Constraint("Horizontal", 0, 3, 1, 3),
    Sketcher.Constraint("Vertical", 1, 3, 2, 3),
    Sketcher.Constraint("Vertical", 0, 3, 4, 3),
    Sketcher.Constraint("Diameter", 0, 6.0),
    Sketcher.Constraint("DistanceX", 0, 3, 1, 3, 9.0),
    Sketcher.Constraint("DistanceY", 1, 3, 3, 3, 25.0),
    Sketcher.Constraint("DistanceX", -1, 1, 0, 3, 29.154127),
])
sketch11.setExpression("Constraints[12]", "Params.sketch11_diameter")
pocket7 = doc.addObject("PartDesign::Pocket", "Pocket006")
body.addObject(pocket7)
pocket7.Profile = sketch11
pocket7.setExpression("Length", "Params.pocket7_length")
pocket7.Reversed = True

sketch12 = doc.addObject("Sketcher::SketchObject", "Sketch011")
body.addObject(sketch12)
sketch12.AttachmentSupport = (doc.YZ_Plane, [""])
sketch12.MapMode = "FlatFace"
sketch12.AttachmentOffset = App.Placement(V(0, 0, -35), App.Rotation())
sketch12.addGeometry([
    Part.Circle(V(-75, 0, 0), V(0, 0, 1), 17),
    Part.Circle(V(-75, 0, 0), V(0, 0, 1), 10),
], False)
sketch12.addConstraint([
    Sketcher.Constraint("Coincident", 1, 3, 0, 3),
    Sketcher.Constraint("PointOnObject", 0, 3, -1),
    Sketcher.Constraint("Diameter", 0, 34.0),
    Sketcher.Constraint("Diameter", 1, 19.0),
    Sketcher.Constraint("DistanceX", 0, 3, -1, 1, 75.0),
])
sketch12.setExpression("Constraints[2]", "Params.sketch12_diameter")
sketch12.setExpression("Constraints[3]", "Params.sketch12_diameter2")
pad5 = doc.addObject("PartDesign::Pad", "Pad004")
body.addObject(pad5)
pad5.Profile = sketch12
pad5.setExpression("Length", "Params.pad5_length")
pad5.Reversed = True

sketch13 = doc.addObject("Sketcher::SketchObject", "Sketch012")
body.addObject(sketch13)
sketch13.Placement = App.Placement(V(4.5, 0, 7.794229), App.Rotation(V(0.866025404, 0, -0.5), V(0, 1, 0), V(0.5, 0, 0.866025404), "ZXY"))
sketch13.addGeometry(Part.Circle(V(0, 5, 0), V(0, 0, 1), 3), False)
sketch13.addConstraint([
    Sketcher.Constraint("PointOnObject", 0, 3, -2),
    Sketcher.Constraint("Diameter", 0, 6.0),
    Sketcher.Constraint("DistanceY", -1, 1, 0, 3, 5.0),
])
sketch13.setExpression("Constraints[1]", "Params.sketch13_diameter")
pocket8 = doc.addObject("PartDesign::Pocket", "Pocket007")
body.addObject(pocket8)
pocket8.Profile = sketch13
pocket8.setExpression("Length", "Params.pocket8_length")

sketch14 = doc.addObject("Sketcher::SketchObject", "Sketch013")
body.addObject(sketch14)
sketch14.Placement = App.Placement(V(-3.25, 0, -5.629165), App.Rotation(V(0.866025404, 0, -0.5), V(0, 1, 0), V(0.5, 0, 0.866025404), "ZXY"))
sketch14.addGeometry(Part.Circle(V(0, 5, 0), V(0, 0, 1), 3), False)
sketch14.addConstraint([
    Sketcher.Constraint("PointOnObject", 0, 3, -2),
    Sketcher.Constraint("Diameter", 0, 6.0),
    Sketcher.Constraint("DistanceY", -1, 1, 0, 3, 5.0),
])
sketch14.setExpression("Constraints[1]", "Params.sketch14_diameter")
pocket9 = doc.addObject("PartDesign::Pocket", "Pocket008")
body.addObject(pocket9)
pocket9.Profile = sketch14
pocket9.setExpression("Length", "Params.pocket9_length")

sketch15 = doc.addObject("Sketcher::SketchObject", "Sketch014")
body.addObject(sketch15)
sketch15.AttachmentSupport = (doc.YZ_Plane, [""])
sketch15.MapMode = "FlatFace"
sketch15.AttachmentOffset = App.Placement(V(0, 0, 9), App.Rotation())
sketch15.addGeometry(Part.Circle(V(9, 0, 0), V(0, 0, 1), 3), False)
sketch15.addConstraint([
    Sketcher.Constraint("PointOnObject", 0, 3, -1),
    Sketcher.Constraint("Diameter", 0, 6.0),
    Sketcher.Constraint("DistanceX", -1, 1, 0, 3, 9.0),
])
sketch15.setExpression("Constraints[1]", "Params.sketch15_diameter")
pocket10 = doc.addObject("PartDesign::Pocket", "Pocket009")
body.addObject(pocket10)
pocket10.Profile = sketch15
pocket10.setExpression("Length", "Params.pocket10_length")

sketch16 = doc.addObject("Sketcher::SketchObject", "Sketch015")
body.addObject(sketch16)
sketch16.AttachmentSupport = (doc.YZ_Plane, [""])
sketch16.MapMode = "FlatFace"
sketch16.AttachmentOffset = App.Placement(V(0, 0, -6.5), App.Rotation())
sketch16.addGeometry(Part.Circle(V(9, 0, 0), V(0, 0, 1), 3), False)
sketch16.addConstraint([
    Sketcher.Constraint("PointOnObject", 0, 3, -1),
    Sketcher.Constraint("Diameter", 0, 6.0),
    Sketcher.Constraint("DistanceX", -1, 1, 0, 3, 9.0),
])
sketch16.setExpression("Constraints[1]", "Params.sketch16_diameter")
pocket11 = doc.addObject("PartDesign::Pocket", "Pocket010")
body.addObject(pocket11)
pocket11.Profile = sketch16
pocket11.setExpression("Length", "Params.pocket11_length")

doc.recompute()
